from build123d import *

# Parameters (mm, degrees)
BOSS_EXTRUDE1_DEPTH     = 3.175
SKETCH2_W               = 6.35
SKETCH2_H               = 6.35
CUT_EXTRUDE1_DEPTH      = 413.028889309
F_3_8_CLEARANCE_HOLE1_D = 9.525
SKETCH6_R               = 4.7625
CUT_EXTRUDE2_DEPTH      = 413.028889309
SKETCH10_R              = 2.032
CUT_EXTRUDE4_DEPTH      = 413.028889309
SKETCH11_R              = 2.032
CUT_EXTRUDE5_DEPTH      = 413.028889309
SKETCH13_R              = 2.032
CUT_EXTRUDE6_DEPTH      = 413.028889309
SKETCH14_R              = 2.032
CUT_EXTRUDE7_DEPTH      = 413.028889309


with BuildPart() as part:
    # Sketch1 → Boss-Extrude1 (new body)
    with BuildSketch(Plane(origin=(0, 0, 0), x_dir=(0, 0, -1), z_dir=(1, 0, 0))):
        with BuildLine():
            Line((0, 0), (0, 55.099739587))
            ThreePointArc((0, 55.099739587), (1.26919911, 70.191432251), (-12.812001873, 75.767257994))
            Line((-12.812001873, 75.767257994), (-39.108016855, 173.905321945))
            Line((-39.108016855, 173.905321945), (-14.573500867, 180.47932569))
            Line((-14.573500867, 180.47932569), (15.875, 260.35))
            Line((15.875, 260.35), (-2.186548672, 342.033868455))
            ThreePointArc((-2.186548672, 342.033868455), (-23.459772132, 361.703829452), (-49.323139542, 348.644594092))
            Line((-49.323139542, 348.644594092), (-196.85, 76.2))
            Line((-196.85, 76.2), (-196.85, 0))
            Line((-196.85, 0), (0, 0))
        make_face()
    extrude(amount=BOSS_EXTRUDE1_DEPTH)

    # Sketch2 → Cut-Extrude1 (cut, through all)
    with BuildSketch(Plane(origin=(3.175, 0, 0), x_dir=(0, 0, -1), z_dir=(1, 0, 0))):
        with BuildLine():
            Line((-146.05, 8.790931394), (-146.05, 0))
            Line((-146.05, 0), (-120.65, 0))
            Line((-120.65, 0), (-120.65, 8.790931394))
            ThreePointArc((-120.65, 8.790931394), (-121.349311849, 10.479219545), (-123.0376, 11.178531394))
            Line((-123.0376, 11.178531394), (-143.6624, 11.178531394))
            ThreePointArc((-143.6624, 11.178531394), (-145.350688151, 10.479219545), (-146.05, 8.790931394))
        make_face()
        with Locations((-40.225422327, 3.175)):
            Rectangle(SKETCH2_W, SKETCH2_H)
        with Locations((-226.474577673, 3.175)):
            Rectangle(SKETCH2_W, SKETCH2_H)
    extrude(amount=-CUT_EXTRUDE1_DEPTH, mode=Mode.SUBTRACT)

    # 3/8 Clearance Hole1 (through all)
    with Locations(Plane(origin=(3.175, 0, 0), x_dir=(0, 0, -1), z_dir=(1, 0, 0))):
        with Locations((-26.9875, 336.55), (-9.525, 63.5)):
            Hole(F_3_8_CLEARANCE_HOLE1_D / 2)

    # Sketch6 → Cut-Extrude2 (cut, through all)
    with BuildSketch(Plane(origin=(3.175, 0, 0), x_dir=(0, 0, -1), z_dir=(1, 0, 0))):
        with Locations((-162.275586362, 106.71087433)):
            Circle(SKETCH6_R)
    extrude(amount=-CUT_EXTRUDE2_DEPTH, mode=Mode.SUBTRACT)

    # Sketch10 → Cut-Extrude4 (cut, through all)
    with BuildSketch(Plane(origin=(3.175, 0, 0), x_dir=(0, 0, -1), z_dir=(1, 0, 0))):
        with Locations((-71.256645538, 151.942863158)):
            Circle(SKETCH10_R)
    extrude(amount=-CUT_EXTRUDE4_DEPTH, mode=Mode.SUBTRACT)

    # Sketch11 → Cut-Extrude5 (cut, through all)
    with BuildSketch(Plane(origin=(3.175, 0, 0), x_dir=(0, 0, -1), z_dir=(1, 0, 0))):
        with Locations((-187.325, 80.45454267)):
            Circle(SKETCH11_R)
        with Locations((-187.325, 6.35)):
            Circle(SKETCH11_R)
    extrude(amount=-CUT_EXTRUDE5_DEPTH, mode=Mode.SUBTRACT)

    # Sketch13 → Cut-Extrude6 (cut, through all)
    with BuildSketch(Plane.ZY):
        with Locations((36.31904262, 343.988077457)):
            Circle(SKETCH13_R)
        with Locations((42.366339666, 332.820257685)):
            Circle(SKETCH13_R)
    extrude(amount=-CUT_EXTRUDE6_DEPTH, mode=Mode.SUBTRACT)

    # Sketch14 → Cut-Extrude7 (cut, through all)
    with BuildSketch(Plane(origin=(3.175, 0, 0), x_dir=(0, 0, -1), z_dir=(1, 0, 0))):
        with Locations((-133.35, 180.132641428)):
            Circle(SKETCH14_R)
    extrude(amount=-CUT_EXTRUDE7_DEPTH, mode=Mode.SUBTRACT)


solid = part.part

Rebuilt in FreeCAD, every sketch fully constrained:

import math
import FreeCAD as App
import Part
import Sketcher
from FreeCAD import Vector
Q = App.Units.Quantity

doc = App.newDocument("Part")
body = doc.addObject("PartDesign::Body", "Body")

sketch1 = body.newObject("Sketcher::SketchObject", "Sketch")
sketch1.AttachmentSupport = (doc.getObject("YZ_Plane"), [""])
sketch1.MapMode = "FlatFace"
sketch1.addGeometry(Part.LineSegment(Vector(0, 0, 0), Vector(55, 0, 0)), False)
sketch1.addGeometry(Part.ArcOfCircle(Part.Circle(Vector(64, 10, 0), Vector(0, 0, 1), 13), math.radians(-131), math.radians(15)), False)
sketch1.addGeometry(Part.LineSegment(Vector(76, 13, 0), Vector(174, 39, 0)), False)
sketch1.addGeometry(Part.LineSegment(Vector(174, 39, 0), Vector(180, 15, 0)), False)
sketch1.addGeometry(Part.LineSegment(Vector(180, 15, 0), Vector(260, -16, 0)), False)
sketch1.addGeometry(Part.LineSegment(Vector(260, -16, 0), Vector(342, 2, 0)), False)
sketch1.addGeometry(Part.ArcOfCircle(Part.Circle(Vector(337, 27, 0), Vector(0, 0, 1), 25), math.radians(-78), math.radians(62)), False)
sketch1.addGeometry(Part.LineSegment(Vector(349, 49, 0), Vector(76, 197, 0)), False)
sketch1.addGeometry(Part.LineSegment(Vector(76, 197, 0), Vector(0, 197, 0)), False)
sketch1.addGeometry(Part.LineSegment(Vector(0, 197, 0), Vector(0, 0, 0)), False)
sketch1.addConstraint(Sketcher.Constraint("Coincident", 0, 2, 1, 1))
sketch1.addConstraint(Sketcher.Constraint("Coincident", 1, 2, 2, 1))
sketch1.addConstraint(Sketcher.Constraint("Coincident", 2, 2, 3, 1))
sketch1.addConstraint(Sketcher.Constraint("Coincident", 3, 2, 4, 1))
sketch1.addConstraint(Sketcher.Constraint("Coincident", 4, 2, 5, 1))
sketch1.addConstraint(Sketcher.Constraint("Tangent", 5, 2, 6, 1))
sketch1.addConstraint(Sketcher.Constraint("Tangent", 6, 2, 7, 1))
sketch1.addConstraint(Sketcher.Constraint("Coincident", 7, 2, 8, 1))
sketch1.addConstraint(Sketcher.Constraint("Coincident", 8, 2, 9, 1))
sketch1.addConstraint(Sketcher.Constraint("Coincident", 9, 2, 0, 1))
sketch1.addConstraint(Sketcher.Constraint("Horizontal", 0))
sketch1.addConstraint(Sketcher.Constraint("Horizontal", 8))
sketch1.addConstraint(Sketcher.Constraint("Vertical", 9))
sketch1.addConstraint(Sketcher.Constraint("Coincident", 9, 2, -1, 1))
sketch1.addConstraint(Sketcher.Constraint("Perpendicular", 2, 3))
sketch1.addConstraint(Sketcher.Constraint("Radius", 6, Q("1 in")))
sketch1.addConstraint(Sketcher.Constraint("Radius", 1, Q("0.5 in")))
sketch1.addConstraint(Sketcher.Constraint("DistanceX", 8, 2, 8, 1, Q("3 in")))
sketch1.addConstraint(Sketcher.Constraint("Distance", 2, Q("4 in")))
sketch1.addConstraint(Sketcher.Constraint("Distance", 3, Q("1 in")))
sketch1.addConstraint(Sketcher.Constraint("Angle", 2, Q("15 deg")))
sketch1.addConstraint(Sketcher.Constraint("DistanceX", 4, 2, 6, 3, Q("3 in")))
sketch1.addConstraint(Sketcher.Constraint("DistanceY", 4, 2, 1, 3, Q("1 in")))
sketch1.addConstraint(Sketcher.Constraint("DistanceY", 9, 2, 9, 1, Q("7.75 in")))
sketch1.addConstraint(Sketcher.Constraint("DistanceX", -1, 1, 1, 3, Q("2.5 in")))
sketch1.addConstraint(Sketcher.Constraint("DistanceX", -1, 1, 6, 3, Q("13.25 in")))
sketch1.addConstraint(Sketcher.Constraint("DistanceY", -1, 1, 1, 3, Q("0.375 in")))
sketch1.addConstraint(Sketcher.Constraint("DistanceY", -1, 1, 6, 3, Q("1.0625 in")))
sketch1.addConstraint(Sketcher.Constraint("DistanceY", -1, 1, 1, 2, Q("12.812002 mm")))
pad1 = body.newObject("PartDesign::Pad", "Pad")
pad1.Profile = sketch1
pad1.Length = Q("0.125 in")

sketch2 = body.newObject("Sketcher::SketchObject", "Sketch001")
sketch2.AttachmentSupport = (doc.getObject("YZ_Plane"), [""])
sketch2.MapMode = "FlatFace"
sketch2.AttachmentOffset = App.Placement(Vector(0, 0, 0.125 * 25.4), App.Rotation())
sketch2.addGeometry(Part.LineSegment(Vector(8.790931, 146.05, 0), Vector(0, 146.05, 0)), False)
sketch2.addGeometry(Part.LineSegment(Vector(0, 146.05, 0), Vector(0, 120.65, 0)), False)
sketch2.addGeometry(Part.LineSegment(Vector(0, 120.65, 0), Vector(8.790931, 120.65, 0)), False)
sketch2.addGeometry(Part.ArcOfCircle(Part.Circle(Vector(8.790931, 123.0376, 0), Vector(0, 0, 1), 2.3876), math.radians(-90), math.radians(0)), False)
sketch2.addGeometry(Part.LineSegment(Vector(11.178531, 123.0376, 0), Vector(11.178531, 143.6624, 0)), False)
sketch2.addGeometry(Part.ArcOfCircle(Part.Circle(Vector(8.790931, 143.6624, 0), Vector(0, 0, 1), 2.3876), math.radians(0), math.radians(90)), False)
sketch2.addGeometry(Part.LineSegment(Vector(6.35, 43.400422, 0), Vector(0, 43.400422, 0)), False)
sketch2.addGeometry(Part.LineSegment(Vector(0, 43.400422, 0), Vector(0, 37.050422, 0)), False)
sketch2.addGeometry(Part.LineSegment(Vector(0, 37.050422, 0), Vector(6.35, 37.050422, 0)), False)
sketch2.addGeometry(Part.LineSegment(Vector(6.35, 37.050422, 0), Vector(6.35, 43.400422, 0)), False)
sketch2.addGeometry(Part.LineSegment(Vector(6.35, 229.649578, 0), Vector(0, 229.649578, 0)), False)
sketch2.addGeometry(Part.LineSegment(Vector(0, 229.649578, 0), Vector(0, 223.299578, 0)), False)
sketch2.addGeometry(Part.LineSegment(Vector(0, 223.299578, 0), Vector(6.35, 223.299578, 0)), False)
sketch2.addGeometry(Part.LineSegment(Vector(6.35, 223.299578, 0), Vector(6.35, 229.649578, 0)), False)
sketch2.addConstraint(Sketcher.Constraint("Coincident", 0, 2, 1, 1))
sketch2.addConstraint(Sketcher.Constraint("Coincident", 1, 2, 2, 1))
sketch2.addConstraint(Sketcher.Constraint("Tangent", 2, 2, 3, 1))
sketch2.addConstraint(Sketcher.Constraint("Tangent", 3, 2, 4, 1))
sketch2.addConstraint(Sketcher.Constraint("Tangent", 4, 2, 5, 1))
sketch2.addConstraint(Sketcher.Constraint("Tangent", 5, 2, 0, 1))
sketch2.addConstraint(Sketcher.Constraint("Coincident", 6, 2, 7, 1))
sketch2.addConstraint(Sketcher.Constraint("Coincident", 7, 2, 8, 1))
sketch2.addConstraint(Sketcher.Constraint("Coincident", 8, 2, 9, 1))
sketch2.addConstraint(Sketcher.Constraint("Coincident", 9, 2, 6, 1))
sketch2.addConstraint(Sketcher.Constraint("Coincident", 10, 2, 11, 1))
sketch2.addConstraint(Sketcher.Constraint("Coincident", 11, 2, 12, 1))
sketch2.addConstraint(Sketcher.Constraint("Coincident", 12, 2, 13, 1))
sketch2.addConstraint(Sketcher.Constraint("Coincident", 13, 2, 10, 1))
sketch2.addConstraint(Sketcher.Constraint("Horizontal", 0))
sketch2.addConstraint(Sketcher.Constraint("Vertical", 1))
sketch2.addConstraint(Sketcher.Constraint("Horizontal", 2))
sketch2.addConstraint(Sketcher.Constraint("Vertical", 4))
sketch2.addConstraint(Sketcher.Constraint("Horizontal", 6))
sketch2.addConstraint(Sketcher.Constraint("Vertical", 7))
sketch2.addConstraint(Sketcher.Constraint("Horizontal", 8))
sketch2.addConstraint(Sketcher.Constraint("Vertical", 9))
sketch2.addConstraint(Sketcher.Constraint("Horizontal", 10))
sketch2.addConstraint(Sketcher.Constraint("Vertical", 11))
sketch2.addConstraint(Sketcher.Constraint("Horizontal", 12))
sketch2.addConstraint(Sketcher.Constraint("Vertical", 13))
sketch2.addConstraint(Sketcher.Constraint("Equal", 3, 5))
sketch2.addConstraint(Sketcher.Constraint("PointOnObject", 0, 2, -2))
sketch2.addConstraint(Sketcher.Constraint("PointOnObject", 6, 2, -2))
sketch2.addConstraint(Sketcher.Constraint("PointOnObject", 10, 2, -2))
sketch2.addConstraint(Sketcher.Constraint("Vertical", 9, 2, 12, 2))
sketch2.addConstraint(Sketcher.Constraint("Equal", 12, 7))
sketch2.addConstraint(Sketcher.Constraint("Equal", 9, 11))
sketch2.addConstraint(Sketcher.Constraint("DistanceY", 1, 2, 1, 1, Q("1 in")))
sketch2.addConstraint(Sketcher.Constraint("Radius", 3, Q("0.094 in")))
sketch2.addConstraint(Sketcher.Constraint("DistanceX", 6, 2, 6, 1, Q("0.25 in")))
sketch2.addConstraint(Sketcher.Constraint("DistanceY", -1, 1, 0, 2, Q("5.75 in")))
sketch2.addConstraint(Sketcher.Constraint("DistanceX", 0, 2, 0, 1, Q("8.790931 mm")))
sketch2.addConstraint(Sketcher.Constraint("DistanceY", -1, 1, 6, 2, Q("43.400422 mm")))
sketch2.addConstraint(Sketcher.Constraint("DistanceY", -1, 1, 10, 2, Q("229.649578 mm")))
pocket1 = body.newObject("PartDesign::Pocket", "Pocket")
pocket1.Profile = sketch2
pocket1.Type = "ThroughAll"

sketch3 = body.newObject("Sketcher::SketchObject", "Sketch002")
sketch3.AttachmentSupport = (doc.getObject("YZ_Plane"), [""])
sketch3.MapMode = "FlatFace"
sketch3.AttachmentOffset = App.Placement(Vector(0, 0, 0.125 * 25.4), App.Rotation())
sketch3.addGeometry(Part.Circle(Vector(336.6, 27, 0), Vector(0, 0, 1), 4.8), False)
sketch3.addGeometry(Part.Circle(Vector(63.5, 9.5, 0), Vector(0, 0, 1), 4.8), False)
sketch3.addConstraint(Sketcher.Constraint("Equal", 0, 1))
sketch3.addConstraint(Sketcher.Constraint("Diameter", 0, Q("0.375 in")))
sketch3.addConstraint(Sketcher.Constraint("DistanceX", -1, 1, 1, 3, Q("2.5 in")))
sketch3.addConstraint(Sketcher.Constraint("DistanceX", -1, 1, 0, 3, Q("13.25 in")))
sketch3.addConstraint(Sketcher.Constraint("DistanceY", -1, 1, 0, 3, Q("1.0625 in")))
sketch3.addConstraint(Sketcher.Constraint("DistanceY", -1, 1, 1, 3, Q("0.375 in")))
doc.recompute()
hole = body.newObject("PartDesign::Hole", "Hole")
hole.Profile = sketch3
hole.ThreadType = "None"
hole.Diameter = Q("0.375 in")
hole.DepthType = "ThroughAll"

sketch4 = body.newObject("Sketcher::SketchObject", "Sketch003")
sketch4.AttachmentSupport = (doc.getObject("YZ_Plane"), [""])
sketch4.MapMode = "FlatFace"
sketch4.AttachmentOffset = App.Placement(Vector(0, 0, 0.125 * 25.4), App.Rotation())
sketch4.addGeometry(Part.Circle(Vector(106.7, 162.3, 0), Vector(0, 0, 1), 4.8), False)
sketch4.addConstraint(Sketcher.Constraint("Diameter", 0, Q("0.375 in")))
sketch4.addConstraint(Sketcher.Constraint("DistanceX", -1, 1, 0, 3, Q("106.710874 mm")))
sketch4.addConstraint(Sketcher.Constraint("DistanceY", -1, 1, 0, 3, Q("162.275586 mm")))
pocket2 = body.newObject("PartDesign::Pocket", "Pocket001")
pocket2.Profile = sketch4
pocket2.Type = "ThroughAll"

sketch5 = body.newObject("Sketcher::SketchObject", "Sketch004")
sketch5.AttachmentSupport = (doc.getObject("YZ_Plane"), [""])
sketch5.MapMode = "FlatFace"
sketch5.AttachmentOffset = App.Placement(Vector(0, 0, 0.125 * 25.4), App.Rotation())
sketch5.addGeometry(Part.Circle(Vector(151.9, 71.3, 0), Vector(0, 0, 1), 2), False)
sketch5.addConstraint(Sketcher.Constraint("Diameter", 0, Q("0.16 in")))
sketch5.addConstraint(Sketcher.Constraint("DistanceX", -1, 1, 0, 3, Q("151.942863 mm")))
sketch5.addConstraint(Sketcher.Constraint("DistanceY", -1, 1, 0, 3, Q("71.256646 mm")))
pocket3 = body.newObject("PartDesign::Pocket", "Pocket002")
pocket3.Profile = sketch5
pocket3.Type = "ThroughAll"

sketch6 = body.newObject("Sketcher::SketchObject", "Sketch005")
sketch6.AttachmentSupport = (doc.getObject("YZ_Plane"), [""])
sketch6.MapMode = "FlatFace"
sketch6.AttachmentOffset = App.Placement(Vector(0, 0, 0.125 * 25.4), App.Rotation())
sketch6.addGeometry(Part.Circle(Vector(80.5, 187.3, 0), Vector(0, 0, 1), 2), False)
sketch6.addGeometry(Part.Circle(Vector(6.3, 187.3, 0), Vector(0, 0, 1), 2), False)
sketch6.addConstraint(Sketcher.Constraint("Equal", 0, 1))
sketch6.addConstraint(Sketcher.Constraint("Horizontal", 0, 3, 1, 3))
sketch6.addConstraint(Sketcher.Constraint("Diameter", 0, Q("0.16 in")))
sketch6.addConstraint(Sketcher.Constraint("DistanceX", -1, 1, 1, 3, Q("0.25 in")))
sketch6.addConstraint(Sketcher.Constraint("DistanceY", -1, 1, 0, 3, Q("7.375 in")))
sketch6.addConstraint(Sketcher.Constraint("DistanceX", -1, 1, 0, 3, Q("80.454543 mm")))
pocket4 = body.newObject("PartDesign::Pocket", "Pocket003")
pocket4.Profile = sketch6
pocket4.Type = "ThroughAll"

sketch7 = body.newObject("Sketcher::SketchObject", "Sketch006")
sketch7.AttachmentSupport = (doc.getObject("YZ_Plane"), [""])
sketch7.MapMode = "FlatFace"
sketch7.addGeometry(Part.Circle(Vector(344, 36.3, 0), Vector(0, 0, 1), 2), False)
sketch7.addGeometry(Part.Circle(Vector(332.8, 42.4, 0), Vector(0, 0, 1), 2), False)
sketch7.addConstraint(Sketcher.Constraint("Equal", 0, 1))
sketch7.addConstraint(Sketcher.Constraint("Diameter", 0, Q("0.16 in")))
sketch7.addConstraint(Sketcher.Constraint("DistanceY", -1, 1, 1, 3, Q("42.36634 mm")))
sketch7.addConstraint(Sketcher.Constraint("DistanceX", 1, 3, 0, 3, Q("11.16782 mm")))
sketch7.addConstraint(Sketcher.Constraint("DistanceX", -1, 1, 0, 3, Q("343.988077 mm")))
sketch7.addConstraint(Sketcher.Constraint("DistanceY", -1, 1, 0, 3, Q("36.319043 mm")))
pocket5 = body.newObject("PartDesign::Pocket", "Pocket004")
pocket5.Profile = sketch7
pocket5.Type = "ThroughAll"
pocket5.Reversed = True

sketch8 = body.newObject("Sketcher::SketchObject", "Sketch007")
sketch8.AttachmentSupport = (doc.getObject("YZ_Plane"), [""])
sketch8.MapMode = "FlatFace"
sketch8.AttachmentOffset = App.Placement(Vector(0, 0, 0.125 * 25.4), App.Rotation())
sketch8.addGeometry(Part.Circle(Vector(180.1, 133.3, 0), Vector(0, 0, 1), 2), False)
sketch8.addConstraint(Sketcher.Constraint("Diameter", 0, Q("0.16 in")))
sketch8.addConstraint(Sketcher.Constraint("DistanceY", -1, 1, 0, 3, Q("5.25 in")))
sketch8.addConstraint(Sketcher.Constraint("DistanceX", -1, 1, 0, 3, Q("180.132641 mm")))
pocket6 = body.newObject("PartDesign::Pocket", "Pocket005")
pocket6.Profile = sketch8
pocket6.Type = "ThroughAll"

doc.recompute()
